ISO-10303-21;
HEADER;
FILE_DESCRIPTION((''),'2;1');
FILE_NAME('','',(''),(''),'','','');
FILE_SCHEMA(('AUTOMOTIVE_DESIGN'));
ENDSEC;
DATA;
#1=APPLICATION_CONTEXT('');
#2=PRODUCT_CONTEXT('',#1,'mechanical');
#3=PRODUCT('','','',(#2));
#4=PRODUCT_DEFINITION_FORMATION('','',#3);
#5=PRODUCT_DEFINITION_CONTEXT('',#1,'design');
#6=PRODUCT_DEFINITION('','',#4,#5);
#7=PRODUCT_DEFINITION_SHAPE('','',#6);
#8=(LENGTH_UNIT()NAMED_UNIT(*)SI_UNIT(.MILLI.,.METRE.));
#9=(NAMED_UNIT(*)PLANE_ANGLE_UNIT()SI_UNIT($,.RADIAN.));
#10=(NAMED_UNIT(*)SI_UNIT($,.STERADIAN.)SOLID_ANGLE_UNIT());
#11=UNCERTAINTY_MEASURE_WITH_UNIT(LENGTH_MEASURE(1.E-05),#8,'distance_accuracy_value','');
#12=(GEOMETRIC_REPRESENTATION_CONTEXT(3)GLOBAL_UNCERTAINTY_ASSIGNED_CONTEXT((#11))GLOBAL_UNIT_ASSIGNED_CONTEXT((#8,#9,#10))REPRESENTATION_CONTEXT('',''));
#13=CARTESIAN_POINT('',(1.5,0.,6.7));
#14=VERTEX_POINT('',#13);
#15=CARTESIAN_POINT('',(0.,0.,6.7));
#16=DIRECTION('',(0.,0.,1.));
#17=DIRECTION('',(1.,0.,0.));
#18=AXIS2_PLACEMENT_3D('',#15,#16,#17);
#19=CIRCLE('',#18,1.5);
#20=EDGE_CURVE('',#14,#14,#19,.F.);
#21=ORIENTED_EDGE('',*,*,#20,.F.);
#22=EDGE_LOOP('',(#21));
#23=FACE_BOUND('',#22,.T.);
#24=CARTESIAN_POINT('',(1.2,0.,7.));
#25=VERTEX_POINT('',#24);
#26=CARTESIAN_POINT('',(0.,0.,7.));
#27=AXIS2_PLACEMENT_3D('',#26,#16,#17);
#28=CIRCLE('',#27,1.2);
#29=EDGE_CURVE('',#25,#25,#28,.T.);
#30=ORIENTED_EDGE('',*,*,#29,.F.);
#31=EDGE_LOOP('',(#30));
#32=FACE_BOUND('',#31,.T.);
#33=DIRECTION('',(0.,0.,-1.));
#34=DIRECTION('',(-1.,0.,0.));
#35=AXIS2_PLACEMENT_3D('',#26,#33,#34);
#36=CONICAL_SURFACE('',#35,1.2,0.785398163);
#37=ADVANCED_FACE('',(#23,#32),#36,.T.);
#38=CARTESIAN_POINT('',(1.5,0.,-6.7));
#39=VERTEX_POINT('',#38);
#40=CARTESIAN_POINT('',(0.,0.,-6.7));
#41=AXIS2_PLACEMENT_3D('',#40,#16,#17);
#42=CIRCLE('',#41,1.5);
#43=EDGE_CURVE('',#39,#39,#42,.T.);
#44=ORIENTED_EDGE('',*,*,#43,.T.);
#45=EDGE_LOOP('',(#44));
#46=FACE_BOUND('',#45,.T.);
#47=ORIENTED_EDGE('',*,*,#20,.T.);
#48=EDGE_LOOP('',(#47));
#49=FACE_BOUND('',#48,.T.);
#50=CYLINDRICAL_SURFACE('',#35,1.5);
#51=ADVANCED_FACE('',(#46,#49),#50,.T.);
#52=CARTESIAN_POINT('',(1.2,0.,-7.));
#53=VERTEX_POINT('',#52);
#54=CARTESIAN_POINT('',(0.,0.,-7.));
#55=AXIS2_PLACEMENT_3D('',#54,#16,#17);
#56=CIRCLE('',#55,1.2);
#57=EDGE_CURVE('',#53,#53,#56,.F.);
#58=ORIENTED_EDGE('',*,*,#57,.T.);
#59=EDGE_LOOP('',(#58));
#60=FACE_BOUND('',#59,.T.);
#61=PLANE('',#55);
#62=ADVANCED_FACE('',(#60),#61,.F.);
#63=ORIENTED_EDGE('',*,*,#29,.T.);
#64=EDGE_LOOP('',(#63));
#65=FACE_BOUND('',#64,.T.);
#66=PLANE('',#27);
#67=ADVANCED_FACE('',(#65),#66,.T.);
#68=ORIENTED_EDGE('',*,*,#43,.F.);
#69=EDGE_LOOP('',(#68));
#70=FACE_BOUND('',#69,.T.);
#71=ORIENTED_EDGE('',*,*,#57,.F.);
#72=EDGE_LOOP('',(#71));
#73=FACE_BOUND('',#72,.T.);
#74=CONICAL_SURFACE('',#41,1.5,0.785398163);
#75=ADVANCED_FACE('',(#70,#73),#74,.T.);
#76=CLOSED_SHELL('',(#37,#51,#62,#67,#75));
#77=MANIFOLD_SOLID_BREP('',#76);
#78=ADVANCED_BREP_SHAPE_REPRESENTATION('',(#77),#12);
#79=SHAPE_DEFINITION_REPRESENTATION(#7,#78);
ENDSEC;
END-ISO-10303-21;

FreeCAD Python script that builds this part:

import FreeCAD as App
import Part
import Sketcher
from FreeCAD import Vector


def edges_at(feature, points):
    """Names of the edges that pass closest to the given points."""
    edges = feature.Shape.Edges
    near = lambda p: min(range(len(edges)), key=lambda i: edges[i].distToShape(Part.Vertex(*p))[0])
    return sorted({f"Edge{near(p) + 1}" for p in points})

doc = App.newDocument("Part")
body = doc.addObject("PartDesign::Body", "Body")

sketch1 = body.newObject("Sketcher::SketchObject", "Sketch")
sketch1.AttachmentSupport = (doc.getObject("XY_Plane"), [""])
sketch1.MapMode = "FlatFace"
sketch1.addGeometry(Part.Circle(Vector(0, 0, 0), Vector(0, 0, 1), 1.5), False)
sketch1.addConstraint([
    Sketcher.Constraint("Coincident", 0, 3, -1, 1),
    Sketcher.Constraint("Diameter", 0, 3.0),
])
pad1 = body.newObject("PartDesign::Pad", "Pad")
pad1.Profile = sketch1
pad1.Length = 14
pad1.Midplane = True
doc.recompute()

chamfer = body.newObject("PartDesign::Chamfer", "Chamfer")
chamfer.Base = (pad1, edges_at(pad1, [(-1.5, 0, -7), (-1.5, 0, 7)]))
chamfer.Size = 0.3

doc.recompute()
